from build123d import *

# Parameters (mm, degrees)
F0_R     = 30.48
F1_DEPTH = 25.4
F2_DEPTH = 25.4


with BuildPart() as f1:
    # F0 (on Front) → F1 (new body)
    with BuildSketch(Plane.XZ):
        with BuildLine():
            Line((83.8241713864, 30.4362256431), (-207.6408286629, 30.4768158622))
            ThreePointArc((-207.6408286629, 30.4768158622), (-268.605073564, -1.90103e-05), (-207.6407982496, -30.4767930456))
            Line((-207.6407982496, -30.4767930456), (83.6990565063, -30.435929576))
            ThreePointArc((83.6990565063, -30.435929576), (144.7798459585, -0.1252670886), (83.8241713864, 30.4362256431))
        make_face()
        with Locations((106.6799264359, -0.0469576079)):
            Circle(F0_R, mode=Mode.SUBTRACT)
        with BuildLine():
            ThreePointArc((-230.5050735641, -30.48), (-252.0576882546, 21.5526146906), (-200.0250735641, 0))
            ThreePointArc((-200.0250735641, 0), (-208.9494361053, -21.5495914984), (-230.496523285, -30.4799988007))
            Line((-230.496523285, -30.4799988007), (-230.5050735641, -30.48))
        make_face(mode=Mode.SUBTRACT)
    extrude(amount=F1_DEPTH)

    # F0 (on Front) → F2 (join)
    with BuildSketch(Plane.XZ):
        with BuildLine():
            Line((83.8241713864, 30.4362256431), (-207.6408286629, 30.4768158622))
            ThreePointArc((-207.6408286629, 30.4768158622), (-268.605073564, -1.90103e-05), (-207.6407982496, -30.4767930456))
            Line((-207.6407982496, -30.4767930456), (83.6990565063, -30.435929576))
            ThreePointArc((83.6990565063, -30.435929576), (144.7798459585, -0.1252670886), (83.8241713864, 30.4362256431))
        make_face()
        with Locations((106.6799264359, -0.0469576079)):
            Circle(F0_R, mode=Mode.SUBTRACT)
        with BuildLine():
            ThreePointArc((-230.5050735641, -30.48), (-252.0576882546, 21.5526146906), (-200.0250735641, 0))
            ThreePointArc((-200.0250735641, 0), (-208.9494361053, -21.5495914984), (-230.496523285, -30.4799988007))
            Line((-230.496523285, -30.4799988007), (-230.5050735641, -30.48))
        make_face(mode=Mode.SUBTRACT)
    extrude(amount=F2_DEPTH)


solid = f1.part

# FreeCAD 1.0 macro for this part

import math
import FreeCAD as App
import Part
import Sketcher

V = App.Vector
Q = App.Units.Quantity

doc = App.newDocument("Part")
body = doc.addObject("PartDesign::Body", "Body")

# Sketch on XZ plane
sketch1 = body.newObject("Sketcher::SketchObject", "Sketch")
sketch1.AttachmentSupport = (doc.getObject("XZ_Plane"), [""])
sketch1.MapMode = "FlatFace"
sketch1.addGeometry([
    Part.LineSegment(V(83.824171, 30.436226, 0), V(-207.640829, 30.476816, 0)),  # 0
    Part.ArcOfCircle(Part.Circle(V(-230.505074, 0, 0), V(0, 0, 1), 38.1), math.radians(53.122122), math.radians(306.877935)),  # 1
    Part.LineSegment(V(-207.640798, -30.476793, 0), V(83.699057, -30.43593, 0)),  # 2
    Part.ArcOfCircle(Part.Circle(V(106.679926, -0.046958, 0), V(0, 0, 1), 38.1), math.radians(-127.097446), math.radians(126.861918)),  # 3
    Part.Circle(V(106.679926, -0.046958, 0), V(0, 0, 1), 30.48),  # 4
    Part.LineSegment(V(-230.496523, -30.479999, 0), V(-230.505074, -30.48, 0)),  # 5
    Part.ArcOfCircle(Part.Circle(V(-230.505074, 0, 0), V(0, 0, 1), 30.48), math.radians(0), math.radians(270)),  # 6
    Part.ArcOfCircle(Part.Circle(V(-230.505074, 0, 0), V(0, 0, 1), 30.48), math.radians(-89.983927), math.radians(0)),  # 7
], False)
sketch1.addConstraint([
    Sketcher.Constraint("Coincident", 0, 2, 1, 1),
    Sketcher.Constraint("Coincident", 1, 2, 2, 1),
    Sketcher.Constraint("Coincident", 2, 2, 3, 1),
    Sketcher.Constraint("Coincident", 3, 2, 0, 1),
    Sketcher.Constraint("Coincident", 5, 2, 6, 2),
    Sketcher.Constraint("Tangent", 6, 1, 7, 2),
    Sketcher.Constraint("Coincident", 7, 1, 5, 1),
    Sketcher.Constraint("Horizontal", 5),
    Sketcher.Constraint("Coincident", 4, 3, 3, 3),
    Sketcher.Constraint("Coincident", 6, 3, 1, 3),
    Sketcher.Constraint("Equal", 1, 3),
    Sketcher.Constraint("Equal", 4, 6),
    Sketcher.Constraint("PointOnObject", 1, 3, -1),
    Sketcher.Constraint("PointOnObject", 6, 1, -1),
    Sketcher.Constraint("Vertical", 7, 3, 5, 2),
    Sketcher.Constraint("Diameter", 4, Q("2.4 in")),
    Sketcher.Constraint("Radius", 1, Q("1.5 in")),
    Sketcher.Constraint("Distance", 0, Q("11.4750001 in")),
    Sketcher.Constraint("DistanceX", 1, 3, 3, 3, Q("13.275 in")),
    Sketcher.Constraint("DistanceX", 5, 2, 5, 1, Q("0.00855 mm")),
    Sketcher.Constraint("DistanceX", 1, 2, -1, 1, Q("207.640798 mm")),
    Sketcher.Constraint("DistanceX", 0, 2, -1, 1, Q("207.640829 mm")),
    Sketcher.Constraint("DistanceY", 2, 2, -1, 1, Q("30.43593 mm")),
    Sketcher.Constraint("DistanceY", 1, 2, 0, 2, Q("60.953609 mm")),
    Sketcher.Constraint("DistanceX", 2, 2, 3, 3, Q("22.98087 mm")),
])
pad1 = body.newObject("PartDesign::Pad", "Pad")
pad1.Profile = sketch1
pad1.Length = Q("1 in")

# Sketch on XZ plane
sketch2 = body.newObject("Sketcher::SketchObject", "Sketch001")
sketch2.AttachmentSupport = (doc.getObject("XZ_Plane"), [""])
sketch2.MapMode = "FlatFace"
sketch2.addGeometry([
    Part.LineSegment(V(83.824171, 30.436226, 0), V(-207.640829, 30.476816, 0)),  # 0
    Part.ArcOfCircle(Part.Circle(V(-230.505074, 0, 0), V(0, 0, 1), 38.1), math.radians(53.122122), math.radians(306.877935)),  # 1
    Part.LineSegment(V(-207.640798, -30.476793, 0), V(83.699057, -30.43593, 0)),  # 2
    Part.ArcOfCircle(Part.Circle(V(106.679926, -0.046958, 0), V(0, 0, 1), 38.1), math.radians(-127.097446), math.radians(126.861918)),  # 3
    Part.Circle(V(106.679926, -0.046958, 0), V(0, 0, 1), 30.48),  # 4
    Part.LineSegment(V(-230.496523, -30.479999, 0), V(-230.505074, -30.48, 0)),  # 5
    Part.ArcOfCircle(Part.Circle(V(-230.505074, 0, 0), V(0, 0, 1), 30.48), math.radians(0), math.radians(270)),  # 6
    Part.ArcOfCircle(Part.Circle(V(-230.505074, 0, 0), V(0, 0, 1), 30.48), math.radians(-89.983927), math.radians(0)),  # 7
], False)
sketch2.addConstraint([
    Sketcher.Constraint("Coincident", 0, 2, 1, 1),
    Sketcher.Constraint("Coincident", 1, 2, 2, 1),
    Sketcher.Constraint("Coincident", 2, 2, 3, 1),
    Sketcher.Constraint("Coincident", 3, 2, 0, 1),
    Sketcher.Constraint("Coincident", 5, 2, 6, 2),
    Sketcher.Constraint("Tangent", 6, 1, 7, 2),
    Sketcher.Constraint("Coincident", 7, 1, 5, 1),
    Sketcher.Constraint("Horizontal", 5),
    Sketcher.Constraint("Coincident", 4, 3, 3, 3),
    Sketcher.Constraint("Coincident", 6, 3, 1, 3),
    Sketcher.Constraint("Equal", 1, 3),
    Sketcher.Constraint("Equal", 4, 6),
    Sketcher.Constraint("PointOnObject", 1, 3, -1),
    Sketcher.Constraint("PointOnObject", 6, 1, -1),
    Sketcher.Constraint("Vertical", 7, 3, 5, 2),
    Sketcher.Constraint("Diameter", 4, Q("2.4 in")),
    Sketcher.Constraint("Radius", 1, Q("1.5 in")),
    Sketcher.Constraint("Distance", 0, Q("11.4750001 in")),
    Sketcher.Constraint("DistanceX", 1, 3, 3, 3, Q("13.275 in")),
    Sketcher.Constraint("DistanceX", 5, 2, 5, 1, Q("0.00855 mm")),
    Sketcher.Constraint("DistanceX", 1, 2, -1, 1, Q("207.640798 mm")),
    Sketcher.Constraint("DistanceX", 0, 2, -1, 1, Q("207.640829 mm")),
    Sketcher.Constraint("DistanceY", 2, 2, -1, 1, Q("30.43593 mm")),
    Sketcher.Constraint("DistanceY", 1, 2, 0, 2, Q("60.953609 mm")),
    Sketcher.Constraint("DistanceX", 2, 2, 3, 3, Q("22.98087 mm")),
])
pad2 = body.newObject("PartDesign::Pad", "Pad001")
pad2.Profile = sketch2
pad2.Length = Q("1 in")

doc.recompute()
